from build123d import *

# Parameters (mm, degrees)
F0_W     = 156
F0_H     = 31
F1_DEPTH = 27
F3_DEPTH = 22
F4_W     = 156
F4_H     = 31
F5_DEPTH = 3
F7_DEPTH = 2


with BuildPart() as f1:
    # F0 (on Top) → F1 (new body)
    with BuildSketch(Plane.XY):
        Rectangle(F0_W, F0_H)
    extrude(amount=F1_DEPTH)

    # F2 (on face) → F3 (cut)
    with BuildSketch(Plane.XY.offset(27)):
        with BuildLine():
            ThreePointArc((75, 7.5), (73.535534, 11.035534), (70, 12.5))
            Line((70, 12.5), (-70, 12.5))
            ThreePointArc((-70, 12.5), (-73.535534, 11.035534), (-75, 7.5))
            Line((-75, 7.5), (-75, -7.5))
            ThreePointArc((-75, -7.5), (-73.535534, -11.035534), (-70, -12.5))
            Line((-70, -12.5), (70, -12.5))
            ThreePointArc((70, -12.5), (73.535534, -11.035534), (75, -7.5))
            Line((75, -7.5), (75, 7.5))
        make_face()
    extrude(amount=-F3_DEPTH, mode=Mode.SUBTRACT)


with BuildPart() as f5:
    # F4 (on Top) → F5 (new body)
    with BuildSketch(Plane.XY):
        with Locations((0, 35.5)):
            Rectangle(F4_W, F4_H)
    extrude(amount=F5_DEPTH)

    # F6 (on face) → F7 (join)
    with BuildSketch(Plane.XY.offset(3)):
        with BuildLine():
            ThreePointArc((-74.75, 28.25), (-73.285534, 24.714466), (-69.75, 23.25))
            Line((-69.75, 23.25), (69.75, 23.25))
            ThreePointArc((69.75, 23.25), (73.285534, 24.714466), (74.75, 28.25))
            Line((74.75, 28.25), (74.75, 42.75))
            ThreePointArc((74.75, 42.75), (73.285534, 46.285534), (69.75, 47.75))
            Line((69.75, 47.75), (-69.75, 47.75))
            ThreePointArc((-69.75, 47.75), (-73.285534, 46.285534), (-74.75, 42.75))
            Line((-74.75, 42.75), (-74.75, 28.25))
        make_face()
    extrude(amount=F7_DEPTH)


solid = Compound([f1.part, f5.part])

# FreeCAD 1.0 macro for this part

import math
import FreeCAD as App
import Part
import Sketcher

V = App.Vector
Q = App.Units.Quantity

doc = App.newDocument("Part")
body = doc.addObject("PartDesign::Body", "Body")

# Sketch on XY plane
sketch1 = body.newObject("Sketcher::SketchObject", "Sketch")
sketch1.AttachmentSupport = (doc.getObject("XY_Plane"), [""])
sketch1.MapMode = "FlatFace"
sketch1.addGeometry([
    Part.LineSegment(V(-78, 16, 0), V(-78, -16, 0)),
    Part.LineSegment(V(-78, -16, 0), V(78, -16, 0)),
    Part.LineSegment(V(78, -16, 0), V(78, 16, 0)),
    Part.LineSegment(V(78, 16, 0), V(-78, 16, 0)),
], False)
sketch1.addConstraint([
    Sketcher.Constraint("Coincident", 0, 2, 1, 1),
    Sketcher.Constraint("Coincident", 1, 2, 2, 1),
    Sketcher.Constraint("Coincident", 2, 2, 3, 1),
    Sketcher.Constraint("Coincident", 3, 2, 0, 1),
    Sketcher.Constraint("Vertical", 0),
    Sketcher.Constraint("Horizontal", 1),
    Sketcher.Constraint("Vertical", 2),
    Sketcher.Constraint("Horizontal", 3),
    Sketcher.Constraint("Symmetric", 0, 2, 2, 2, -1, 1),
    Sketcher.Constraint("DistanceX", 1, 1, 1, 2, Q("156 mm")),
    Sketcher.Constraint("DistanceY", 0, 2, 0, 1, Q("31 mm")),
])
pad1 = body.newObject("PartDesign::Pad", "Pad")
pad1.Profile = sketch1
pad1.Length = 27

# Sketch on XY plane
sketch2 = body.newObject("Sketcher::SketchObject", "Sketch001")
sketch2.AttachmentSupport = (doc.getObject("XY_Plane"), [""])
sketch2.MapMode = "FlatFace"
sketch2.AttachmentOffset = App.Placement(V(0, 0, 27), App.Rotation())
sketch2.addGeometry([
    Part.ArcOfCircle(Part.Circle(V(70, 7.5, 0), V(0, 0, 1), 5), math.radians(0), math.radians(90)),  # 0
    Part.LineSegment(V(70, 12.5, 0), V(-70, 12.5, 0)),  # 1
    Part.ArcOfCircle(Part.Circle(V(-70, 7.5, 0), V(0, 0, 1), 5), math.radians(90), math.radians(180)),  # 2
    Part.LineSegment(V(-75, 7.5, 0), V(-75, -7.5, 0)),  # 3
    Part.ArcOfCircle(Part.Circle(V(-70, -7.5, 0), V(0, 0, 1), 5), math.radians(180), math.radians(270)),  # 4
    Part.LineSegment(V(-70, -12.5, 0), V(70, -12.5, 0)),  # 5
    Part.ArcOfCircle(Part.Circle(V(70, -7.5, 0), V(0, 0, 1), 5), math.radians(-90), math.radians(0)),  # 6
    Part.LineSegment(V(75, -7.5, 0), V(75, 7.5, 0)),  # 7
], False)
sketch2.addConstraint([
    Sketcher.Constraint("Tangent", 0, 2, 1, 1),
    Sketcher.Constraint("Tangent", 1, 2, 2, 1),
    Sketcher.Constraint("Tangent", 2, 2, 3, 1),
    Sketcher.Constraint("Tangent", 3, 2, 4, 1),
    Sketcher.Constraint("Tangent", 4, 2, 5, 1),
    Sketcher.Constraint("Tangent", 5, 2, 6, 1),
    Sketcher.Constraint("Tangent", 6, 2, 7, 1),
    Sketcher.Constraint("Tangent", 7, 2, 0, 1),
    Sketcher.Constraint("Horizontal", 1),
    Sketcher.Constraint("Vertical", 3),
    Sketcher.Constraint("Horizontal", 5),
    Sketcher.Constraint("Vertical", 7),
    Sketcher.Constraint("Equal", 0, 2),
    Sketcher.Constraint("Equal", 2, 4),
    Sketcher.Constraint("Equal", 4, 6),
    Sketcher.Constraint("Symmetric", 0, 3, 4, 3, -1, 1),
    Sketcher.Constraint("Radius", 0, Q("5 mm")),
    Sketcher.Constraint("DistanceX", 1, 2, 1, 1, Q("140 mm")),
    Sketcher.Constraint("DistanceY", 3, 2, 3, 1, Q("15 mm")),
])
pocket1 = body.newObject("PartDesign::Pocket", "Pocket")
pocket1.Profile = sketch2
pocket1.Length = 22
body2 = doc.addObject("PartDesign::Body", "Body001")

# Sketch on XY plane
sketch3 = body2.newObject("Sketcher::SketchObject", "Sketch002")
sketch3.AttachmentSupport = (doc.getObject("XY_Plane001"), [""])
sketch3.MapMode = "FlatFace"
sketch3.addGeometry([
    Part.LineSegment(V(-78, 51, 0), V(-78, 20, 0)),
    Part.LineSegment(V(-78, 20, 0), V(78, 20, 0)),
    Part.LineSegment(V(78, 20, 0), V(78, 51, 0)),
    Part.LineSegment(V(78, 51, 0), V(-78, 51, 0)),
], False)
sketch3.addConstraint([
    Sketcher.Constraint("Coincident", 0, 2, 1, 1),
    Sketcher.Constraint("Coincident", 1, 2, 2, 1),
    Sketcher.Constraint("Coincident", 2, 2, 3, 1),
    Sketcher.Constraint("Coincident", 3, 2, 0, 1),
    Sketcher.Constraint("Vertical", 0),
    Sketcher.Constraint("Horizontal", 1),
    Sketcher.Constraint("Vertical", 2),
    Sketcher.Constraint("Horizontal", 3),
    Sketcher.Constraint("DistanceX", 1, 1, 1, 2, Q("156 mm")),
    Sketcher.Constraint("DistanceY", 0, 2, 0, 1, Q("31 mm")),
    Sketcher.Constraint("DistanceX", 0, 2, -1, 1, Q("78 mm")),
    Sketcher.Constraint("DistanceY", -1, 1, 0, 2, Q("20 mm")),
])
pad2 = body2.newObject("PartDesign::Pad", "Pad001")
pad2.Profile = sketch3
pad2.Length = 3

# Sketch on XY plane
sketch4 = body2.newObject("Sketcher::SketchObject", "Sketch003")
sketch4.AttachmentSupport = (doc.getObject("XY_Plane001"), [""])
sketch4.MapMode = "FlatFace"
sketch4.AttachmentOffset = App.Placement(V(0, 0, 3), App.Rotation())
sketch4.addGeometry([
    Part.ArcOfCircle(Part.Circle(V(-69.8, 28.2, 0), V(0, 0, 1), 5), math.radians(180), math.radians(270)),  # 0
    Part.LineSegment(V(-69.8, 23.2, 0), V(69.8, 23.2, 0)),  # 1
    Part.ArcOfCircle(Part.Circle(V(69.8, 28.2, 0), V(0, 0, 1), 5), math.radians(-90), math.radians(0)),  # 2
    Part.LineSegment(V(74.8, 28.2, 0), V(74.8, 42.8, 0)),  # 3
    Part.ArcOfCircle(Part.Circle(V(69.8, 42.8, 0), V(0, 0, 1), 5), math.radians(0), math.radians(90)),  # 4
    Part.LineSegment(V(69.8, 47.8, 0), V(-69.8, 47.8, 0)),  # 5
    Part.ArcOfCircle(Part.Circle(V(-69.8, 42.8, 0), V(0, 0, 1), 5), math.radians(90), math.radians(180)),  # 6
    Part.LineSegment(V(-74.8, 42.8, 0), V(-74.8, 28.2, 0)),  # 7
], False)
sketch4.addConstraint([
    Sketcher.Constraint("Tangent", 0, 2, 1, 1),
    Sketcher.Constraint("Tangent", 1, 2, 2, 1),
    Sketcher.Constraint("Tangent", 2, 2, 3, 1),
    Sketcher.Constraint("Tangent", 3, 2, 4, 1),
    Sketcher.Constraint("Tangent", 4, 2, 5, 1),
    Sketcher.Constraint("Tangent", 5, 2, 6, 1),
    Sketcher.Constraint("Tangent", 6, 2, 7, 1),
    Sketcher.Constraint("Tangent", 7, 2, 0, 1),
    Sketcher.Constraint("Horizontal", 1),
    Sketcher.Constraint("Vertical", 3),
    Sketcher.Constraint("Horizontal", 5),
    Sketcher.Constraint("Vertical", 7),
    Sketcher.Constraint("Equal", 0, 2),
    Sketcher.Constraint("Equal", 2, 4),
    Sketcher.Constraint("Equal", 4, 6),
    Sketcher.Constraint("Radius", 0, Q("5 mm")),
    Sketcher.Constraint("DistanceX", 1, 1, 1, 2, Q("139.5 mm")),
    Sketcher.Constraint("DistanceY", 3, 1, 3, 2, Q("14.5 mm")),
    Sketcher.Constraint("DistanceX", 0, 3, -1, 1, Q("69.75 mm")),
    Sketcher.Constraint("DistanceY", -1, 1, 0, 3, Q("28.25 mm")),
])
pad3 = body2.newObject("PartDesign::Pad", "Pad002")
pad3.Profile = sketch4
pad3.Length = 2

doc.recompute()
